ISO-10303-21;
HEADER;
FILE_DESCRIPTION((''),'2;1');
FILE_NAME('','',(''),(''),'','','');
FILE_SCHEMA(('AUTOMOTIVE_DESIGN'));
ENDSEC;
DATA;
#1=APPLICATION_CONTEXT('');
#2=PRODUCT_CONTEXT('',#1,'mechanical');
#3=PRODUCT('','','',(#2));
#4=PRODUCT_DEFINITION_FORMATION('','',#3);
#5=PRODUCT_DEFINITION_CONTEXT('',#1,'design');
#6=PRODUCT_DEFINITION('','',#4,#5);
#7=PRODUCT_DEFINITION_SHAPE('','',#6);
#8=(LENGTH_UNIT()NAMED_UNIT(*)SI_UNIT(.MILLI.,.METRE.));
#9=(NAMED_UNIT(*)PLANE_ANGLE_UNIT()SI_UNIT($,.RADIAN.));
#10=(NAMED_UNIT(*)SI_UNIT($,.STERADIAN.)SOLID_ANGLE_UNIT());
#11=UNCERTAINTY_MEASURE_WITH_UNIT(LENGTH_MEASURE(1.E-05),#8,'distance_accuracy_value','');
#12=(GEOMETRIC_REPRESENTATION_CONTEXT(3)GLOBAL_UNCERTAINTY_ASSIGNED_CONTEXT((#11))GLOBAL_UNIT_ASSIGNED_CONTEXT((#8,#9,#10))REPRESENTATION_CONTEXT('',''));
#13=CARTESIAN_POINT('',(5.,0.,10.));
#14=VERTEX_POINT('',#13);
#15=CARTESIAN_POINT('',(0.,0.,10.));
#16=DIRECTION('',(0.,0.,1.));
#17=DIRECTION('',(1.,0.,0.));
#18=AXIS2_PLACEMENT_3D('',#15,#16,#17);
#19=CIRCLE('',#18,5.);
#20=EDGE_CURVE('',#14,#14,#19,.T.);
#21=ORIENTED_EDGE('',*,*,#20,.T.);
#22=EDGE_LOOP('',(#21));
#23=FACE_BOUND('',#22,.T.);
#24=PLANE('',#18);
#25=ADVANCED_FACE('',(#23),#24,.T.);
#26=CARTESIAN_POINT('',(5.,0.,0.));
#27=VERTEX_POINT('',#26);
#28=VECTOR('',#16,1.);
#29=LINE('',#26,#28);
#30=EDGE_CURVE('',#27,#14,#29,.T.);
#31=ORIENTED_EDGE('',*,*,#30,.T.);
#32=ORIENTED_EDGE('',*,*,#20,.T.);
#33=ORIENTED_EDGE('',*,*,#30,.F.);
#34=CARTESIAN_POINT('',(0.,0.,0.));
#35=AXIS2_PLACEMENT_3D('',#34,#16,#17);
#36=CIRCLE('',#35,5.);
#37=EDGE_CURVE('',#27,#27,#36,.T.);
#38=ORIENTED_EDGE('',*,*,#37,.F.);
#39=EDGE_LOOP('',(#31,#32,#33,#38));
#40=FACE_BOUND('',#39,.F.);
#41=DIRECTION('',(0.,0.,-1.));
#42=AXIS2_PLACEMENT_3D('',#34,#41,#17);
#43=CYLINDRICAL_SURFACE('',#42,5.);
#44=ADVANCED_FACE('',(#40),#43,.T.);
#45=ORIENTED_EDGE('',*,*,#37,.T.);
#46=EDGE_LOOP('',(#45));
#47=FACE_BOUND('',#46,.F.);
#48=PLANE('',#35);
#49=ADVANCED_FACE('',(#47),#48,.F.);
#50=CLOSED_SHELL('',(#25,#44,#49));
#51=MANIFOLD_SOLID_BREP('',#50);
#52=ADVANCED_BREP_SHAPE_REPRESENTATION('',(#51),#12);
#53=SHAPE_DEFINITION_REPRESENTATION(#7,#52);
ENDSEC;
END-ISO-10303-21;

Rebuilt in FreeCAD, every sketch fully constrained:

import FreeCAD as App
import Part
import Sketcher

V = App.Vector

doc = App.newDocument("Part")
params = doc.addObject("Spreadsheet::Sheet", "Params")
for row, (alias, value) in enumerate([
    ("sketch1_diameter", "10 mm"),
    ("pad1_length", "10 mm"),
], start=1):
    params.set(f"A{row}", alias)
    params.set(f"B{row}", "=" + value)
    params.setAlias(f"B{row}", alias)

body = doc.addObject("PartDesign::Body", "Body")

# Sketch on XY plane
sketch1 = body.newObject("Sketcher::SketchObject", "Sketch")
sketch1.AttachmentSupport = (doc.getObject("XY_Plane"), [""])
sketch1.MapMode = "FlatFace"
sketch1.addGeometry(Part.Circle(V(0, 0, 0), V(0, 0, 1), 5), False)
sketch1.addConstraint(Sketcher.Constraint("Coincident", 0, 3, -1, 1))
sketch1.addConstraint(Sketcher.Constraint("Diameter", 0, 10.0))
sketch1.setExpression("Constraints[1]", "Params.sketch1_diameter")
pad1 = body.newObject("PartDesign::Pad", "Pad")
pad1.Profile = sketch1
pad1.setExpression("Length", "Params.pad1_length")

doc.recompute()
